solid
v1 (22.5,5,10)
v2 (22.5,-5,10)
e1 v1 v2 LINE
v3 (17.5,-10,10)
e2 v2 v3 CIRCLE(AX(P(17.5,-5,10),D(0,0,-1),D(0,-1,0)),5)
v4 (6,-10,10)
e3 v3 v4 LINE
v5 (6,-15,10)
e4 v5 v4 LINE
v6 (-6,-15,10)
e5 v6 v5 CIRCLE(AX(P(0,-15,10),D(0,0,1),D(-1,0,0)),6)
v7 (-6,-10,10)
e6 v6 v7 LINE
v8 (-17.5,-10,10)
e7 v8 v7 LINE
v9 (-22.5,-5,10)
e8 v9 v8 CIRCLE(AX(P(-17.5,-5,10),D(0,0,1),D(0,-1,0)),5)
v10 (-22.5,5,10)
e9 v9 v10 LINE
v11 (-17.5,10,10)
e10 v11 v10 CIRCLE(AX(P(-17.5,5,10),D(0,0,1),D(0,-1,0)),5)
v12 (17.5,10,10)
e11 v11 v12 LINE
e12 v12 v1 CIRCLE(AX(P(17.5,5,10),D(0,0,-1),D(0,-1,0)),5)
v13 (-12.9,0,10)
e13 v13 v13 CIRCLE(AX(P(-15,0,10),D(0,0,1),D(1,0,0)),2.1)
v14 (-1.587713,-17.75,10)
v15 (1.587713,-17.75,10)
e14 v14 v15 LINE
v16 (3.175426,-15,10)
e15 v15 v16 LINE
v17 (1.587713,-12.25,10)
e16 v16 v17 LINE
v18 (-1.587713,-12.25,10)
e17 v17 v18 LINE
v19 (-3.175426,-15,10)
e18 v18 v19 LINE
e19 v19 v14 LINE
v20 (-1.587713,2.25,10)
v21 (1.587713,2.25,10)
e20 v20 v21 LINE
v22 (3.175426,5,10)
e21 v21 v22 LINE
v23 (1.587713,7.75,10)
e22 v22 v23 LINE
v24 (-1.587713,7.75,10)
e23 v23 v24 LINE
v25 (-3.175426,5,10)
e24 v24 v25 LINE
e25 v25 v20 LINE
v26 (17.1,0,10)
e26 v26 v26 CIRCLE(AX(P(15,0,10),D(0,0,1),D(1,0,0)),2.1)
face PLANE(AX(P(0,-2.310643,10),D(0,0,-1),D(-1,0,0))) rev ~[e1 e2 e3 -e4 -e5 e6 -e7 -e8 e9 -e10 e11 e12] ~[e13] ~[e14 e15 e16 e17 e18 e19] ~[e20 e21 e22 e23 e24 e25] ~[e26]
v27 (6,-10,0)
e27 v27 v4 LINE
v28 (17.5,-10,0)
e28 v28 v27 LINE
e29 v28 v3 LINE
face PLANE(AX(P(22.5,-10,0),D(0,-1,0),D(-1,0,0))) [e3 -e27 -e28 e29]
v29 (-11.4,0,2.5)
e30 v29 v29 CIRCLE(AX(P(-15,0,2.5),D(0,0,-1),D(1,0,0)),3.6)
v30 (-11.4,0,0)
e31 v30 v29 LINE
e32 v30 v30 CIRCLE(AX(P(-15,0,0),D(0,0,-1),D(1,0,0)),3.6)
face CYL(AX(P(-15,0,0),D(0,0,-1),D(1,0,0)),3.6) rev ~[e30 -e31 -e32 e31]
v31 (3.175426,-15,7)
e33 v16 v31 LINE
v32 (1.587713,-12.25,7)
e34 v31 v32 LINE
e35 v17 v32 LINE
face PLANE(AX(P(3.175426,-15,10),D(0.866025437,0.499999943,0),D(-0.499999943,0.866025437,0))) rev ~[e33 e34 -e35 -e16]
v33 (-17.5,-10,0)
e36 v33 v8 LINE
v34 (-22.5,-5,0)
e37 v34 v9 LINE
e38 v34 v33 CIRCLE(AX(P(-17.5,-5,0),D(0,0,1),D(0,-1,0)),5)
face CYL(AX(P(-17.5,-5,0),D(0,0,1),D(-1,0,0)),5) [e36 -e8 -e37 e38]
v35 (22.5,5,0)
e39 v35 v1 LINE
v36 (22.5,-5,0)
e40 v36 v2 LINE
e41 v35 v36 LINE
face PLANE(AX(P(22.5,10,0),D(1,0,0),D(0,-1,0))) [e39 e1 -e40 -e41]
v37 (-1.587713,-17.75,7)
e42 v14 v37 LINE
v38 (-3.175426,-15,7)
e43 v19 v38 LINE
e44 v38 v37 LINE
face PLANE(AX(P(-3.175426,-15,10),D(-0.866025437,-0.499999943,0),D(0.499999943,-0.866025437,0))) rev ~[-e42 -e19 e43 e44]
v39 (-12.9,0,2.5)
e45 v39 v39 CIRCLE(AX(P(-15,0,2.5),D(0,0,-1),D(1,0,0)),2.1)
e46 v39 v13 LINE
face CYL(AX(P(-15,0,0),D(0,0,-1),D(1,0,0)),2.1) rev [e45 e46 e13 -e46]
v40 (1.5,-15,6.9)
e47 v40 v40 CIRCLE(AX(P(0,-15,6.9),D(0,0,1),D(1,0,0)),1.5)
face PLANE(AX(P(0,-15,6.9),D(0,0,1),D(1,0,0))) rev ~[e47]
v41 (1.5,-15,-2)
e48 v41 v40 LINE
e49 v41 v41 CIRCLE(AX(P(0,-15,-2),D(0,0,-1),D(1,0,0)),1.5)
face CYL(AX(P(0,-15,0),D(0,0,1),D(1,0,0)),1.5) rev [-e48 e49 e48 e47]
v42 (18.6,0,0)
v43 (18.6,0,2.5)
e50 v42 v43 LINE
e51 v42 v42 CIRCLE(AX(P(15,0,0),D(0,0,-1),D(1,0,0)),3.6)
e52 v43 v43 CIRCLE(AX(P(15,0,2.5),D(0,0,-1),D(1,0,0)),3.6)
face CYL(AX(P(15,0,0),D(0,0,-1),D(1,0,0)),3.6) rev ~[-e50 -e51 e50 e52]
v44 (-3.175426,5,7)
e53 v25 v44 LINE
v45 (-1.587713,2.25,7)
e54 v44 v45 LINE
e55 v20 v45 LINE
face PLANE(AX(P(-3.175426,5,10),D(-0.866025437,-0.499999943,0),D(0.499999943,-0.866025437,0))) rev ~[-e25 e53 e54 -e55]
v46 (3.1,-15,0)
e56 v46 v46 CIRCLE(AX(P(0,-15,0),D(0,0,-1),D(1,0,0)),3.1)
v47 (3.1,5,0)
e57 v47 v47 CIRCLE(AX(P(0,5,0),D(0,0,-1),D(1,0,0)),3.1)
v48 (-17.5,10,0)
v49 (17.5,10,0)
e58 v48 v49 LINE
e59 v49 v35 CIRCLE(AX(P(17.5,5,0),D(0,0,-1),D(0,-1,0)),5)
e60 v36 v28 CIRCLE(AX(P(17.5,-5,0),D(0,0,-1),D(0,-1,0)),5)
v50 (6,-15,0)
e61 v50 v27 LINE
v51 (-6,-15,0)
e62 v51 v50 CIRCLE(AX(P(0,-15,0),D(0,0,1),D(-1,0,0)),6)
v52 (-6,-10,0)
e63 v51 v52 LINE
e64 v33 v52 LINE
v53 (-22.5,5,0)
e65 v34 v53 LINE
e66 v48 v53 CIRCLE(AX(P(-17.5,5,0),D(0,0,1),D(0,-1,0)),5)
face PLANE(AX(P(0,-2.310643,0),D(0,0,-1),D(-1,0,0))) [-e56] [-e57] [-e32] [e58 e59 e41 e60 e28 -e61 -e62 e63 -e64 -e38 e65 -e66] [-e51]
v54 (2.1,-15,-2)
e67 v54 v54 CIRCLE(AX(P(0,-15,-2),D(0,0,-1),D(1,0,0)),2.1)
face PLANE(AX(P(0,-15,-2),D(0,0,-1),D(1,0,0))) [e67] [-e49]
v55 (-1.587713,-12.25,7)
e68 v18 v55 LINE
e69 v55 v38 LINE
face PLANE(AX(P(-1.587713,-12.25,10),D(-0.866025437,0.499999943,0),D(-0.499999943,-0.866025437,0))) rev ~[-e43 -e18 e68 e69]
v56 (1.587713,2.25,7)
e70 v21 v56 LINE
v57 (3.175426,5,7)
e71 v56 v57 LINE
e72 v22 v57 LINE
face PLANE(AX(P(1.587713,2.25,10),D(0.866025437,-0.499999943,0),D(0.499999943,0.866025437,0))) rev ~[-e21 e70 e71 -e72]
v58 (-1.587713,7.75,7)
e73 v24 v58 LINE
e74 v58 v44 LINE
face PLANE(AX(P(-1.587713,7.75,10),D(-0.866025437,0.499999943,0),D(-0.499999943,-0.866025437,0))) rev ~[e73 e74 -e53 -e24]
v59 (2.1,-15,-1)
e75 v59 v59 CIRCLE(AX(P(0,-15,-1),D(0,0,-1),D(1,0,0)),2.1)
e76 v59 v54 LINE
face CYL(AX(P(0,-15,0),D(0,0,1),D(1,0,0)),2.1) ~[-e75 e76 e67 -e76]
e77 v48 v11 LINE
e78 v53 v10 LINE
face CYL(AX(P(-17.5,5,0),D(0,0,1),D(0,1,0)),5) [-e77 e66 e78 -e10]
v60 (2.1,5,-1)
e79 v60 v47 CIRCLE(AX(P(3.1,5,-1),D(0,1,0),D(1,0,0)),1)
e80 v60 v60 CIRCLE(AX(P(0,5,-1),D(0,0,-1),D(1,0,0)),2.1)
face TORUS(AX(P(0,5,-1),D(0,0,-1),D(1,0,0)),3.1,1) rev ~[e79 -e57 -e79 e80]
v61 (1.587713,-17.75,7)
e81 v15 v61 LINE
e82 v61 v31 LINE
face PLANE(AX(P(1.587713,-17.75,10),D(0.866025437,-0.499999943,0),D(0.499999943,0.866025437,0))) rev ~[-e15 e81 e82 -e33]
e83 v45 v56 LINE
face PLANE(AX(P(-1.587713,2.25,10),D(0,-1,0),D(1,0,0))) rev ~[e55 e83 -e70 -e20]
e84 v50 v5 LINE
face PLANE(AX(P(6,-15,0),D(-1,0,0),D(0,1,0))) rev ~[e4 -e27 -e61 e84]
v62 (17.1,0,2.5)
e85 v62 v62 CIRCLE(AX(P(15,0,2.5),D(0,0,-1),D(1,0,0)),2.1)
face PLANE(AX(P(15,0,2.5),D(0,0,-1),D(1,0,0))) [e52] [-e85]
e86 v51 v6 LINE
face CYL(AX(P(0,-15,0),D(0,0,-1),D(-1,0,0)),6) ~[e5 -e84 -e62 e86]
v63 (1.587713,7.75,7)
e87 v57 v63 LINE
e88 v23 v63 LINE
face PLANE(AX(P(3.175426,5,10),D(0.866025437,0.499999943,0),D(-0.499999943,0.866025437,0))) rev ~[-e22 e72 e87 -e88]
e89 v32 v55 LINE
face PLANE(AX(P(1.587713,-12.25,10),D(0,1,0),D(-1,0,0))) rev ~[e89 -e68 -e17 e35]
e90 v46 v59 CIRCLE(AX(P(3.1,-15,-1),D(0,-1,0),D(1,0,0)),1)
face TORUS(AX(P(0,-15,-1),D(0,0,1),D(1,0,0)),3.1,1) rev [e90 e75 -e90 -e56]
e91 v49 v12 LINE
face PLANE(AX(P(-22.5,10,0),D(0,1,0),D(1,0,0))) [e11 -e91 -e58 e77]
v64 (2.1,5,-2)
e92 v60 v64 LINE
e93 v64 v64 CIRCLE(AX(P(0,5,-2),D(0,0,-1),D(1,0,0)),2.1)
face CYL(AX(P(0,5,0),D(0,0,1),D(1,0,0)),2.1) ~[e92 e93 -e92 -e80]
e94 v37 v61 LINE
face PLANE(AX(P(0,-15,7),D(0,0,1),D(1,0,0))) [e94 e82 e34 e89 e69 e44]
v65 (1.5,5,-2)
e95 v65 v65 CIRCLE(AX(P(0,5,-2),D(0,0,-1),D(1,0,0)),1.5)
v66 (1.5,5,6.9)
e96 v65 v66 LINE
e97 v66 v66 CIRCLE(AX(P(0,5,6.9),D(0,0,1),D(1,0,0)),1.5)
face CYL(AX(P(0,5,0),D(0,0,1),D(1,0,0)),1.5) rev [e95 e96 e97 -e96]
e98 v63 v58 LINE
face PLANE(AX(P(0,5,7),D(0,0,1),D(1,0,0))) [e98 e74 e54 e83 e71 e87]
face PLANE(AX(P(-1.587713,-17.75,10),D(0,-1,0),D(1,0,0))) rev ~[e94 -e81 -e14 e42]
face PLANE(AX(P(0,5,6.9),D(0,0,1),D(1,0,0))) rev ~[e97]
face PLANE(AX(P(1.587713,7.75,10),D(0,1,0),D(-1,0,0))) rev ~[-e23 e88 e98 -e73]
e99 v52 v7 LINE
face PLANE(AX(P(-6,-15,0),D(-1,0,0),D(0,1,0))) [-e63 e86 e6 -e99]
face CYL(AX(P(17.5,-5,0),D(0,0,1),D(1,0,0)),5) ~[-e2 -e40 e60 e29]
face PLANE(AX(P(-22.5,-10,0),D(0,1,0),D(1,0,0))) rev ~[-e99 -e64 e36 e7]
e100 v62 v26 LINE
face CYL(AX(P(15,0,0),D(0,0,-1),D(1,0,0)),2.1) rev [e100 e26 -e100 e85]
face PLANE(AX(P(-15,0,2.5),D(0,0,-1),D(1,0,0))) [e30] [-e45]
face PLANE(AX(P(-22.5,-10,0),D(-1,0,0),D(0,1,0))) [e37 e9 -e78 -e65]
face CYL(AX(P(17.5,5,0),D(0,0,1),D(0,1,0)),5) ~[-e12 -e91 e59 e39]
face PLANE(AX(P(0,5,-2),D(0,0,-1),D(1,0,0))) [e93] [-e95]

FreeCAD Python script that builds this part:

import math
import FreeCAD as App
import Part
import Sketcher

V = App.Vector
Q = App.Units.Quantity


def edges_at(feature, points):
    """Names of the edges that pass closest to the given points."""
    edges = feature.Shape.Edges
    near = lambda p: min(range(len(edges)), key=lambda i: edges[i].distToShape(Part.Vertex(*p))[0])
    return sorted({f"Edge{near(p) + 1}" for p in points})

doc = App.newDocument("Part")
body = doc.addObject("PartDesign::Body", "Body")

# Sketch on XY plane
sketch1 = body.newObject("Sketcher::SketchObject", "Sketch")
sketch1.AttachmentSupport = (doc.getObject("XY_Plane"), [""])
sketch1.MapMode = "FlatFace"
sketch1.addGeometry(Part.LineSegment(V(22.5, 10, 0), V(-22.5, 10, 0)), False)
sketch1.addGeometry(Part.LineSegment(V(-22.5, 10, 0), V(-22.5, -10, 0)), False)
sketch1.addGeometry(Part.LineSegment(V(-22.5, -10, 0), V(-6, -10, 0)), False)
sketch1.addGeometry(Part.LineSegment(V(-6, -10, 0), V(-6, -15, 0)), False)
sketch1.addGeometry(Part.ArcOfCircle(Part.Circle(V(0, -15, 0), V(0, 0, 1), 6), math.radians(180), math.radians(360)), False)
sketch1.addGeometry(Part.LineSegment(V(6, -15, 0), V(6, -10, 0)), False)
sketch1.addGeometry(Part.LineSegment(V(6, -10, 0), V(22.5, -10, 0)), False)
sketch1.addGeometry(Part.LineSegment(V(22.5, -10, 0), V(22.5, 10, 0)), False)
sketch1.addGeometry(Part.Circle(V(0, -15, 0), V(0, 0, 1), 1.5), False)
sketch1.addGeometry(Part.Circle(V(15, 0, 0), V(0, 0, 1), 2.1), False)
sketch1.addGeometry(Part.Circle(V(-15, 0, 0), V(0, 0, 1), 2.1), False)
sketch1.addGeometry(Part.Circle(V(0, 5, 0), V(0, 0, 1), 1.5), False)
sketch1.addConstraint(Sketcher.Constraint("Coincident", 0, 2, 1, 1))
sketch1.addConstraint(Sketcher.Constraint("Coincident", 1, 2, 2, 1))
sketch1.addConstraint(Sketcher.Constraint("Coincident", 2, 2, 3, 1))
sketch1.addConstraint(Sketcher.Constraint("Tangent", 3, 2, 4, 1))
sketch1.addConstraint(Sketcher.Constraint("Tangent", 4, 2, 5, 1))
sketch1.addConstraint(Sketcher.Constraint("Coincident", 5, 2, 6, 1))
sketch1.addConstraint(Sketcher.Constraint("Coincident", 6, 2, 7, 1))
sketch1.addConstraint(Sketcher.Constraint("Coincident", 7, 2, 0, 1))
sketch1.addConstraint(Sketcher.Constraint("Horizontal", 0))
sketch1.addConstraint(Sketcher.Constraint("Vertical", 1))
sketch1.addConstraint(Sketcher.Constraint("Horizontal", 2))
sketch1.addConstraint(Sketcher.Constraint("Vertical", 3))
sketch1.addConstraint(Sketcher.Constraint("Vertical", 5))
sketch1.addConstraint(Sketcher.Constraint("Horizontal", 6))
sketch1.addConstraint(Sketcher.Constraint("Vertical", 7))
sketch1.addConstraint(Sketcher.Constraint("Coincident", 8, 3, 4, 3))
sketch1.addConstraint(Sketcher.Constraint("Equal", 9, 10))
sketch1.addConstraint(Sketcher.Constraint("Equal", 8, 11))
sketch1.addConstraint(Sketcher.Constraint("Symmetric", 9, 3, 10, 3, -1, 1))
sketch1.addConstraint(Sketcher.Constraint("Symmetric", 0, 2, 6, 2, -1, 1))
sketch1.addConstraint(Sketcher.Constraint("Symmetric", 2, 2, 5, 2, -2))
sketch1.addConstraint(Sketcher.Constraint("PointOnObject", 9, 3, -1))
sketch1.addConstraint(Sketcher.Constraint("PointOnObject", 11, 3, -2))
sketch1.addConstraint(Sketcher.Constraint("Diameter", 8, 3.0))
sketch1.addConstraint(Sketcher.Constraint("Radius", 4, 6.0))
sketch1.addConstraint(Sketcher.Constraint("Diameter", 9, 4.2))
sketch1.addConstraint(Sketcher.Constraint("DistanceX", 0, 2, 0, 1, 45.0))
sketch1.addConstraint(Sketcher.Constraint("DistanceY", 1, 2, 1, 1, 20.0))
sketch1.addConstraint(Sketcher.Constraint("DistanceY", 3, 2, 3, 1, 5.0))
sketch1.addConstraint(Sketcher.Constraint("DistanceX", -1, 1, 9, 3, 15.0))
sketch1.addConstraint(Sketcher.Constraint("DistanceY", -1, 1, 11, 3, 5.0))
pad1 = body.newObject("PartDesign::Pad", "Pad")
pad1.Profile = sketch1
pad1.Length = 10

# Sketch on XY plane
sketch2 = body.newObject("Sketcher::SketchObject", "Sketch001")
sketch2.AttachmentSupport = (doc.getObject("XY_Plane"), [""])
sketch2.MapMode = "FlatFace"
sketch2.AttachmentOffset = App.Placement(V(0, 0, 10), App.Rotation())
sketch2.addGeometry(Part.LineSegment(V(1.6, 2.2, 0), V(3.2, 5, 0)), False)
sketch2.addGeometry(Part.LineSegment(V(3.2, 5, 0), V(1.6, 7.8, 0)), False)
sketch2.addGeometry(Part.LineSegment(V(1.6, 7.8, 0), V(-1.6, 7.8, 0)), False)
sketch2.addGeometry(Part.LineSegment(V(-1.6, 7.8, 0), V(-3.2, 5, 0)), False)
sketch2.addGeometry(Part.LineSegment(V(-3.2, 5, 0), V(-1.6, 2.2, 0)), False)
sketch2.addGeometry(Part.LineSegment(V(-1.6, 2.2, 0), V(1.6, 2.2, 0)), False)
sketch2.addGeometry(Part.LineSegment(V(1.6, -17.8, 0), V(3.2, -15, 0)), False)
sketch2.addGeometry(Part.LineSegment(V(3.2, -15, 0), V(1.6, -12.2, 0)), False)
sketch2.addGeometry(Part.LineSegment(V(1.6, -12.2, 0), V(-1.6, -12.2, 0)), False)
sketch2.addGeometry(Part.LineSegment(V(-1.6, -12.2, 0), V(-3.2, -15, 0)), False)
sketch2.addGeometry(Part.LineSegment(V(-3.2, -15, 0), V(-1.6, -17.8, 0)), False)
sketch2.addGeometry(Part.LineSegment(V(-1.6, -17.8, 0), V(1.6, -17.8, 0)), False)
sketch2.addConstraint(Sketcher.Constraint("Coincident", 0, 2, 1, 1))
sketch2.addConstraint(Sketcher.Constraint("Coincident", 1, 2, 2, 1))
sketch2.addConstraint(Sketcher.Constraint("Coincident", 2, 2, 3, 1))
sketch2.addConstraint(Sketcher.Constraint("Coincident", 3, 2, 4, 1))
sketch2.addConstraint(Sketcher.Constraint("Coincident", 4, 2, 5, 1))
sketch2.addConstraint(Sketcher.Constraint("Coincident", 5, 2, 0, 1))
sketch2.addConstraint(Sketcher.Constraint("Coincident", 6, 2, 7, 1))
sketch2.addConstraint(Sketcher.Constraint("Coincident", 7, 2, 8, 1))
sketch2.addConstraint(Sketcher.Constraint("Coincident", 8, 2, 9, 1))
sketch2.addConstraint(Sketcher.Constraint("Coincident", 9, 2, 10, 1))
sketch2.addConstraint(Sketcher.Constraint("Coincident", 10, 2, 11, 1))
sketch2.addConstraint(Sketcher.Constraint("Coincident", 11, 2, 6, 1))
sketch2.addConstraint(Sketcher.Constraint("Horizontal", 2))
sketch2.addConstraint(Sketcher.Constraint("Horizontal", 5))
sketch2.addConstraint(Sketcher.Constraint("Horizontal", 8))
sketch2.addConstraint(Sketcher.Constraint("Horizontal", 11))
sketch2.addConstraint(Sketcher.Constraint("Symmetric", 0, 2, 3, 2, -2))
sketch2.addConstraint(Sketcher.Constraint("Symmetric", 6, 2, 9, 2, -2))
sketch2.addConstraint(Sketcher.Constraint("Parallel", 0, 3))
sketch2.addConstraint(Sketcher.Constraint("Parallel", 1, 4))
sketch2.addConstraint(Sketcher.Constraint("Parallel", 3, 6))
sketch2.addConstraint(Sketcher.Constraint("Parallel", 4, 7))
sketch2.addConstraint(Sketcher.Constraint("Parallel", 6, 9))
sketch2.addConstraint(Sketcher.Constraint("Parallel", 7, 10))
sketch2.addConstraint(Sketcher.Constraint("Vertical", 2, 2, 4, 2))
sketch2.addConstraint(Sketcher.Constraint("Vertical", 1, 2, 5, 2))
sketch2.addConstraint(Sketcher.Constraint("Vertical", 0, 2, 6, 2))
sketch2.addConstraint(Sketcher.Constraint("Vertical", 5, 2, 7, 2))
sketch2.addConstraint(Sketcher.Constraint("Vertical", 8, 2, 10, 2))
sketch2.addConstraint(Sketcher.Constraint("Angle", 0, Q("60.000004 deg")))
sketch2.addConstraint(Sketcher.Constraint("DistanceY", -1, 1, 0, 2, 5.0))
sketch2.addConstraint(Sketcher.Constraint("DistanceY", 6, 2, -1, 1, 15.0))
sketch2.addConstraint(Sketcher.Constraint("DistanceY", 4, 2, 2, 2, 5.5))
sketch2.addConstraint(Sketcher.Constraint("DistanceX", 2, 2, 2, 1, 3.175426))
pocket1 = body.newObject("PartDesign::Pocket", "Pocket")
pocket1.Profile = sketch2
pocket1.Length = 3

# Sketch on XY plane
sketch3 = body.newObject("Sketcher::SketchObject", "Sketch002")
sketch3.AttachmentSupport = (doc.getObject("XY_Plane"), [""])
sketch3.MapMode = "FlatFace"
sketch3.addGeometry(Part.Circle(V(0, 5, 0), V(0, 0, 1), 2.1), False)
sketch3.addGeometry(Part.Circle(V(0, 5, 0), V(0, 0, 1), 1.5), False)
sketch3.addGeometry(Part.Circle(V(0, -15, 0), V(0, 0, 1), 2.1), False)
sketch3.addGeometry(Part.Circle(V(0, -15, 0), V(0, 0, 1), 1.5), False)
sketch3.addConstraint(Sketcher.Constraint("Coincident", 1, 3, 0, 3))
sketch3.addConstraint(Sketcher.Constraint("Coincident", 3, 3, 2, 3))
sketch3.addConstraint(Sketcher.Constraint("Equal", 0, 2))
sketch3.addConstraint(Sketcher.Constraint("Equal", 1, 3))
sketch3.addConstraint(Sketcher.Constraint("PointOnObject", 0, 3, -2))
sketch3.addConstraint(Sketcher.Constraint("PointOnObject", 2, 3, -2))
sketch3.addConstraint(Sketcher.Constraint("Diameter", 1, 3.0))
sketch3.addConstraint(Sketcher.Constraint("Diameter", 0, 4.2))
sketch3.addConstraint(Sketcher.Constraint("DistanceY", -1, 1, 0, 3, 5.0))
sketch3.addConstraint(Sketcher.Constraint("DistanceY", 2, 3, -1, 1, 15.0))
pad2 = body.newObject("PartDesign::Pad", "Pad001")
pad2.Profile = sketch3
pad2.Length = 2
pad2.Reversed = True

# Sketch on XY plane
sketch4 = body.newObject("Sketcher::SketchObject", "Sketch003")
sketch4.AttachmentSupport = (doc.getObject("XY_Plane"), [""])
sketch4.MapMode = "FlatFace"
sketch4.addGeometry(Part.Circle(V(15, 0, 0), V(0, 0, 1), 3.6), False)
sketch4.addGeometry(Part.Circle(V(15, 0, 0), V(0, 0, 1), 2.1), False)
sketch4.addGeometry(Part.Circle(V(-15, 0, 0), V(0, 0, 1), 3.6), False)
sketch4.addGeometry(Part.Circle(V(-15, 0, 0), V(0, 0, 1), 2.1), False)
sketch4.addConstraint(Sketcher.Constraint("Coincident", 1, 3, 0, 3))
sketch4.addConstraint(Sketcher.Constraint("Coincident", 3, 3, 2, 3))
sketch4.addConstraint(Sketcher.Constraint("Equal", 0, 2))
sketch4.addConstraint(Sketcher.Constraint("Equal", 1, 3))
sketch4.addConstraint(Sketcher.Constraint("Symmetric", 0, 3, 2, 3, -1, 1))
sketch4.addConstraint(Sketcher.Constraint("PointOnObject", 0, 3, -1))
sketch4.addConstraint(Sketcher.Constraint("Diameter", 0, 7.2))
sketch4.addConstraint(Sketcher.Constraint("Diameter", 1, 4.2))
sketch4.addConstraint(Sketcher.Constraint("DistanceX", -1, 1, 0, 3, 15.0))
pocket2 = body.newObject("PartDesign::Pocket", "Pocket001")
pocket2.Profile = sketch4
pocket2.Length = 2.5
pocket2.Reversed = True
doc.recompute()

fillet = body.newObject("PartDesign::Fillet", "Fillet")
fillet.Base = (pocket2, edges_at(pocket2, [(-2.1, 5, 0), (-2.1, -15, 0)]))
fillet.Radius = 1
doc.recompute()

fillet2 = body.newObject("PartDesign::Fillet", "Fillet001")
fillet2.Base = (fillet, edges_at(fillet, [
    (22.5, 10, 5),
    (22.5, -10, 5),
    (-22.5, 10, 5),
    (-22.5, -10, 5),
]))
fillet2.Radius = 5

# Sketch on XY plane
sketch5 = body.newObject("Sketcher::SketchObject", "Sketch004")
sketch5.AttachmentSupport = (doc.getObject("XY_Plane"), [""])
sketch5.MapMode = "FlatFace"
sketch5.AttachmentOffset = App.Placement(V(0, 0, 7), App.Rotation())
sketch5.addGeometry(Part.Circle(V(0, 5, 0), V(0, 0, 1), 1.5), False)
sketch5.addGeometry(Part.Circle(V(0, -15, 0), V(0, 0, 1), 1.5), False)
sketch5.addConstraint(Sketcher.Constraint("Equal", 0, 1))
sketch5.addConstraint(Sketcher.Constraint("PointOnObject", 0, 3, -2))
sketch5.addConstraint(Sketcher.Constraint("PointOnObject", 1, 3, -2))
sketch5.addConstraint(Sketcher.Constraint("Diameter", 0, 3.0))
sketch5.addConstraint(Sketcher.Constraint("DistanceY", -1, 1, 0, 3, 5.0))
sketch5.addConstraint(Sketcher.Constraint("DistanceY", 1, 3, -1, 1, 15.0))
pad3 = body.newObject("PartDesign::Pad", "Pad002")
pad3.Profile = sketch5
pad3.Length = 0.1
pad3.Reversed = True

doc.recompute()
